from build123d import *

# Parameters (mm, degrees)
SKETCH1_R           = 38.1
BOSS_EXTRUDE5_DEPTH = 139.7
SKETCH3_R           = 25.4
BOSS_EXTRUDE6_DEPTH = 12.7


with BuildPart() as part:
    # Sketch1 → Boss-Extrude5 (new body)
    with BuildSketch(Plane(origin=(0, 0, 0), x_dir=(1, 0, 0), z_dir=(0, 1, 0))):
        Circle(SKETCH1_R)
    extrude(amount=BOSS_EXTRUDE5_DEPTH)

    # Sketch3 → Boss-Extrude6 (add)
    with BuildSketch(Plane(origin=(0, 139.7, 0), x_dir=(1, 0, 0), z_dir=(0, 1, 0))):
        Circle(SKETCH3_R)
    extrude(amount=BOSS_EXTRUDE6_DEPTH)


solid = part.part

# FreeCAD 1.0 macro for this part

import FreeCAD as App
import Part
import Sketcher
from FreeCAD import Vector
Q = App.Units.Quantity

doc = App.newDocument("Part")
body = doc.addObject("PartDesign::Body", "Body")

sketch1 = body.newObject("Sketcher::SketchObject", "Sketch")
sketch1.AttachmentSupport = (doc.getObject("XZ_Plane"), [""])
sketch1.MapMode = "FlatFace"
sketch1.addGeometry(Part.Circle(Vector(0, 0, 0), Vector(0, 0, 1), 38.1), False)
sketch1.addConstraint([
    Sketcher.Constraint("Coincident", 0, 3, -1, 1),
    Sketcher.Constraint("Diameter", 0, Q("3 in")),
])
pad1 = body.newObject("PartDesign::Pad", "Pad")
pad1.Profile = sketch1
pad1.Length = Q("5.5 in")
pad1.Reversed = True

sketch2 = body.newObject("Sketcher::SketchObject", "Sketch001")
sketch2.AttachmentSupport = (doc.getObject("XZ_Plane"), [""])
sketch2.MapMode = "FlatFace"
sketch2.AttachmentOffset = App.Placement(Vector(0, 0, -5.5 * 25.4), App.Rotation())
sketch2.addGeometry(Part.Circle(Vector(0, 0, 0), Vector(0, 0, 1), 25.4), False)
sketch2.addConstraint([
    Sketcher.Constraint("Coincident", 0, 3, -1, 1),
    Sketcher.Constraint("Diameter", 0, Q("2 in")),
])
pad2 = body.newObject("PartDesign::Pad", "Pad001")
pad2.Profile = sketch2
pad2.Length = Q("0.5 in")
pad2.Reversed = True

doc.recompute()
